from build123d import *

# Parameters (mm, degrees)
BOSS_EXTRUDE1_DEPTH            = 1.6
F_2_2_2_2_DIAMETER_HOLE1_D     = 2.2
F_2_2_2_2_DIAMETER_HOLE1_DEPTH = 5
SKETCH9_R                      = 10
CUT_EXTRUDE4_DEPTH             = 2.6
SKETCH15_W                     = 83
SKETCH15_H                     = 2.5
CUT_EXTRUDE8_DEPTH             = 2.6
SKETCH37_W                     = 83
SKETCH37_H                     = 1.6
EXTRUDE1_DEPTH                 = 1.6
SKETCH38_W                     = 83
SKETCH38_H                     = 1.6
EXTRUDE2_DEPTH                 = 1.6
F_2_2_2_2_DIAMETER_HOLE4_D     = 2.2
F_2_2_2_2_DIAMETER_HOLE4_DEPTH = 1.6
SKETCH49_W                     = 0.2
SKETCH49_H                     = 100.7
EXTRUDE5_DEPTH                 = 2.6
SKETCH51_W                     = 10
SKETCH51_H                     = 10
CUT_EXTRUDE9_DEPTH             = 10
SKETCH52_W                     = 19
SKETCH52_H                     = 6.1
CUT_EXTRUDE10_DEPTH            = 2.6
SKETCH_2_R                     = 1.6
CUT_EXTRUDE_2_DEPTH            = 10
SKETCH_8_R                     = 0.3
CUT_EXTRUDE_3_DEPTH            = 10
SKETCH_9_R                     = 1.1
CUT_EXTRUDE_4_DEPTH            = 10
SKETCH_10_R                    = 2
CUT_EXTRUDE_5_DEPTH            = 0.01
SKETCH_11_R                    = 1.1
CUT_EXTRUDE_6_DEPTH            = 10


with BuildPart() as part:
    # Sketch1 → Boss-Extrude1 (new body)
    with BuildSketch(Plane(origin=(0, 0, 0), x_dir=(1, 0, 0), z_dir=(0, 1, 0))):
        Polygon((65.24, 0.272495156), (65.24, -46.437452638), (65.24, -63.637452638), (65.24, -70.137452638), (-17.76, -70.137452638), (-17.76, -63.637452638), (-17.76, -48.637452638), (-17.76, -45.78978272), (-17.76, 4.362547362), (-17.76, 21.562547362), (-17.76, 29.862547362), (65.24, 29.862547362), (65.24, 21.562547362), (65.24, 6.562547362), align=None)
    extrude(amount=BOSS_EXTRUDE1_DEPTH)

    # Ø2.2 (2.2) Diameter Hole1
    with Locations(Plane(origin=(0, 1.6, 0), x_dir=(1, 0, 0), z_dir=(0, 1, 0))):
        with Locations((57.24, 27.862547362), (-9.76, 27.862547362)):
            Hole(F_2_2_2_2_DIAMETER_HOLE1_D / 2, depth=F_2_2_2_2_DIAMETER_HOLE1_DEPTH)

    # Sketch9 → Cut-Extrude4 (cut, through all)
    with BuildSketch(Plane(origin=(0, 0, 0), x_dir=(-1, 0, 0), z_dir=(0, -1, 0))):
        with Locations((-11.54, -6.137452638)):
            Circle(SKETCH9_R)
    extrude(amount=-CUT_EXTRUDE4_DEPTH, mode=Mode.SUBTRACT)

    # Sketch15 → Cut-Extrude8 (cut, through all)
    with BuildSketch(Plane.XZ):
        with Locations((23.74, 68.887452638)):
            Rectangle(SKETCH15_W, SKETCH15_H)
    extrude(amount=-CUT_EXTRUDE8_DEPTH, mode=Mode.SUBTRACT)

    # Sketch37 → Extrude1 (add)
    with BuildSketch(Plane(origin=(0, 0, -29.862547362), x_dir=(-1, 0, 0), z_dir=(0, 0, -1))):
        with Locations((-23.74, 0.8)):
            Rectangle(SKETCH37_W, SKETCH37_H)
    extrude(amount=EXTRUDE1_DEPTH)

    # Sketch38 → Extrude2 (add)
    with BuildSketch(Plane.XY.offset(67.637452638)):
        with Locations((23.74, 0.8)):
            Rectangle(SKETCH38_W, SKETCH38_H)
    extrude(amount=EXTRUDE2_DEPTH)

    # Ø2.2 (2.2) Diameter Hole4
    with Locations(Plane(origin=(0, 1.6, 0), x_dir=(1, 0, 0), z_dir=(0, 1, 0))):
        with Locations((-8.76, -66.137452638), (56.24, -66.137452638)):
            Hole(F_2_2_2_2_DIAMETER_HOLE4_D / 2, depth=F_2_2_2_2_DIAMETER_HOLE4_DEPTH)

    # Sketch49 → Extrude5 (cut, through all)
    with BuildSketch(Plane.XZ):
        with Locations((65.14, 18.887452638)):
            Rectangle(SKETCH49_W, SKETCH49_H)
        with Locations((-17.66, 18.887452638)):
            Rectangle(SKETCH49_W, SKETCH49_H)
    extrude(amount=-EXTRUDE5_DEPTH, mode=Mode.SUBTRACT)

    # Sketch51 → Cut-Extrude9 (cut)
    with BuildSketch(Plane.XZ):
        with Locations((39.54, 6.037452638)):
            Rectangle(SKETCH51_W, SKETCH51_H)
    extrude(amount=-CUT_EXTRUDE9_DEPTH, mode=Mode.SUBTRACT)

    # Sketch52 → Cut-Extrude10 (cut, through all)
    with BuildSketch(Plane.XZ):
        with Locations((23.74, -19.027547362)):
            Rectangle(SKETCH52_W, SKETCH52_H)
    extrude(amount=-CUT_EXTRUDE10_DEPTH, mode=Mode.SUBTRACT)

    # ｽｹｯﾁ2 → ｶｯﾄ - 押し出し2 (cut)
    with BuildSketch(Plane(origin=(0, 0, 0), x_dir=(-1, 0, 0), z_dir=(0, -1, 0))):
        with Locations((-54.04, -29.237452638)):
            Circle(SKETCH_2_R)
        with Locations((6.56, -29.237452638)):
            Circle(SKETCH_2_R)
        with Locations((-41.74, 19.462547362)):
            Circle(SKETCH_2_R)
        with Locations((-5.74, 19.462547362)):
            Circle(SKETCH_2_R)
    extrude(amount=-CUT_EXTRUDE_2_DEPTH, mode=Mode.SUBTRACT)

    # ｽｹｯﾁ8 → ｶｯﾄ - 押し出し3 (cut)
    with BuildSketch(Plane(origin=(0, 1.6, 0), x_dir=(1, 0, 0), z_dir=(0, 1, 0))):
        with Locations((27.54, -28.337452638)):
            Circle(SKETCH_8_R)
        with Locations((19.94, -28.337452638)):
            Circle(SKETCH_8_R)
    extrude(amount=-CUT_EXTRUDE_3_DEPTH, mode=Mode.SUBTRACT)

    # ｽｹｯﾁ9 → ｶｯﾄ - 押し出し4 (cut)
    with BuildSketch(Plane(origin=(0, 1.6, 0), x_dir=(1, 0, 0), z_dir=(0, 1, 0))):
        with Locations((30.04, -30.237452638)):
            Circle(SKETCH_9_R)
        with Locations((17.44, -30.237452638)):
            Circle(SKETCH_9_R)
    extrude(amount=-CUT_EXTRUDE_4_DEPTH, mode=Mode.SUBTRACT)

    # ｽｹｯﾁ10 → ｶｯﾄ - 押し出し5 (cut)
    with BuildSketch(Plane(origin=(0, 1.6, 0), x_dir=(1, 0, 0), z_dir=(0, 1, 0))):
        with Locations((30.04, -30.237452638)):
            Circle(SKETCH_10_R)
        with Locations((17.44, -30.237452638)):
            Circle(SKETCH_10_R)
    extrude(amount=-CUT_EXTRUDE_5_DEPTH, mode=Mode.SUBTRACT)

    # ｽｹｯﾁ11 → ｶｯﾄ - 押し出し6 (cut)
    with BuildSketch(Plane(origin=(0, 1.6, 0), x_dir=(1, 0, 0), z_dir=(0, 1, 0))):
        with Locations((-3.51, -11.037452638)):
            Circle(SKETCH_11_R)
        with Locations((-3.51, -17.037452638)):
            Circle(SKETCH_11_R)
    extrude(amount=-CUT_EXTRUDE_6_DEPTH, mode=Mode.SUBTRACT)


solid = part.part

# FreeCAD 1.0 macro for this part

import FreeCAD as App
import Part
import Sketcher

doc = App.newDocument("Part")
body = doc.addObject("PartDesign::Body", "Body")

sketch1 = body.newObject("Sketcher::SketchObject", "Sketch")
sketch1.AttachmentSupport = (doc.getObject("XZ_Plane"), [""])
sketch1.MapMode = "FlatFace"
sketch1.addGeometry([
    Part.LineSegment(App.Vector(65, 70, 0), App.Vector(65, -30, 0)),
    Part.LineSegment(App.Vector(65, -30, 0), App.Vector(-18, -30, 0)),
    Part.LineSegment(App.Vector(-18, -30, 0), App.Vector(-18, 70, 0)),
    Part.LineSegment(App.Vector(-18, 70, 0), App.Vector(65, 70, 0)),
], False)
sketch1.addConstraint([
    Sketcher.Constraint("Coincident", 0, 2, 1, 1),
    Sketcher.Constraint("Coincident", 1, 2, 2, 1),
    Sketcher.Constraint("Coincident", 2, 2, 3, 1),
    Sketcher.Constraint("Coincident", 3, 2, 0, 1),
    Sketcher.Constraint("Vertical", 0),
    Sketcher.Constraint("Horizontal", 1),
    Sketcher.Constraint("Vertical", 2),
    Sketcher.Constraint("Horizontal", 3),
    Sketcher.Constraint("DistanceX", 1, 2, 1, 1, 83.0),
    Sketcher.Constraint("DistanceY", 0, 2, 0, 1, 100.0),
    Sketcher.Constraint("DistanceX", -1, 1, 0, 2, 65.24),
    Sketcher.Constraint("DistanceY", 0, 2, -1, 1, 29.862547),
])
pad1 = body.newObject("PartDesign::Pad", "Pad")
pad1.Profile = sketch1
pad1.Length = 1.6
pad1.Reversed = True

sketch2 = body.newObject("Sketcher::SketchObject", "Sketch001")
sketch2.AttachmentSupport = (doc.getObject("XZ_Plane"), [""])
sketch2.MapMode = "FlatFace"
sketch2.AttachmentOffset = App.Placement(App.Vector(0, 0, -1.6), App.Rotation())
sketch2.addGeometry([
    Part.Circle(App.Vector(57.2, -27.9, 0), App.Vector(0, 0, 1), 1.1),
    Part.Circle(App.Vector(-9.8, -27.9, 0), App.Vector(0, 0, 1), 1.1),
], False)
sketch2.addConstraint([
    Sketcher.Constraint("Equal", 0, 1),
    Sketcher.Constraint("Horizontal", 0, 3, 1, 3),
    Sketcher.Constraint("Diameter", 0, 2.2),
    Sketcher.Constraint("DistanceX", 1, 3, 0, 3, 67.0),
    Sketcher.Constraint("DistanceX", -1, 1, 0, 3, 57.24),
    Sketcher.Constraint("DistanceY", 0, 3, -1, 1, 27.862547),
])
doc.recompute()
hole = body.newObject("PartDesign::Hole", "Hole")
hole.Profile = sketch2
hole.ThreadType = "None"
hole.Diameter = 2.2
hole.DepthType = "Dimension"
hole.Depth = 5
hole.DrillPoint = "Flat"
hole.Reversed = True

sketch3 = body.newObject("Sketcher::SketchObject", "Sketch002")
sketch3.AttachmentSupport = (doc.getObject("XZ_Plane"), [""])
sketch3.MapMode = "FlatFace"
sketch3.addGeometry(Part.Circle(App.Vector(12, 6, 0), App.Vector(0, 0, 1), 10), False)
sketch3.addConstraint([
    Sketcher.Constraint("Diameter", 0, 20.0),
    Sketcher.Constraint("DistanceX", -1, 1, 0, 3, 11.54),
    Sketcher.Constraint("DistanceY", -1, 1, 0, 3, 6.137453),
])
pocket1 = body.newObject("PartDesign::Pocket", "Pocket")
pocket1.Profile = sketch3
pocket1.Type = "ThroughAll"

sketch4 = body.newObject("Sketcher::SketchObject", "Sketch003")
sketch4.AttachmentSupport = (doc.getObject("XZ_Plane"), [""])
sketch4.MapMode = "FlatFace"
sketch4.addGeometry([
    Part.LineSegment(App.Vector(-17.8, 70.1, 0), App.Vector(-17.8, 67.6, 0)),
    Part.LineSegment(App.Vector(-17.8, 67.6, 0), App.Vector(65.2, 67.6, 0)),
    Part.LineSegment(App.Vector(65.2, 67.6, 0), App.Vector(65.2, 70.1, 0)),
    Part.LineSegment(App.Vector(65.2, 70.1, 0), App.Vector(-17.8, 70.1, 0)),
], False)
sketch4.addConstraint([
    Sketcher.Constraint("Coincident", 0, 2, 1, 1),
    Sketcher.Constraint("Coincident", 1, 2, 2, 1),
    Sketcher.Constraint("Coincident", 2, 2, 3, 1),
    Sketcher.Constraint("Coincident", 3, 2, 0, 1),
    Sketcher.Constraint("Vertical", 0),
    Sketcher.Constraint("Horizontal", 1),
    Sketcher.Constraint("Vertical", 2),
    Sketcher.Constraint("Horizontal", 3),
    Sketcher.Constraint("DistanceX", 1, 1, 1, 2, 83.0),
    Sketcher.Constraint("DistanceY", 0, 2, 0, 1, 2.5),
    Sketcher.Constraint("DistanceX", 0, 2, -1, 1, 17.76),
    Sketcher.Constraint("DistanceY", -1, 1, 0, 2, 67.637453),
])
pocket2 = body.newObject("PartDesign::Pocket", "Pocket001")
pocket2.Profile = sketch4
pocket2.Type = "ThroughAll"

sketch5 = body.newObject("Sketcher::SketchObject", "Sketch004")
sketch5.AttachmentSupport = (doc.getObject("XY_Plane"), [""])
sketch5.MapMode = "FlatFace"
sketch5.AttachmentOffset = App.Placement(App.Vector(0, 0, -29.862547), App.Rotation())
sketch5.addGeometry([
    Part.LineSegment(App.Vector(65.2, 1.6, 0), App.Vector(65.2, 0, 0)),
    Part.LineSegment(App.Vector(65.2, 0, 0), App.Vector(-17.8, 0, 0)),
    Part.LineSegment(App.Vector(-17.8, 0, 0), App.Vector(-17.8, 1.6, 0)),
    Part.LineSegment(App.Vector(-17.8, 1.6, 0), App.Vector(65.2, 1.6, 0)),
], False)
sketch5.addConstraint([
    Sketcher.Constraint("Coincident", 0, 2, 1, 1),
    Sketcher.Constraint("Coincident", 1, 2, 2, 1),
    Sketcher.Constraint("Coincident", 2, 2, 3, 1),
    Sketcher.Constraint("Coincident", 3, 2, 0, 1),
    Sketcher.Constraint("Vertical", 0),
    Sketcher.Constraint("Horizontal", 1),
    Sketcher.Constraint("Vertical", 2),
    Sketcher.Constraint("Horizontal", 3),
    Sketcher.Constraint("PointOnObject", 0, 2, -1),
    Sketcher.Constraint("DistanceX", 1, 2, 1, 1, 83.0),
    Sketcher.Constraint("DistanceY", 0, 2, 0, 1, 1.6),
    Sketcher.Constraint("DistanceX", -1, 1, 0, 2, 65.24),
])
pad2 = body.newObject("PartDesign::Pad", "Pad001")
pad2.Profile = sketch5
pad2.Length = 1.6
pad2.Reversed = True

sketch6 = body.newObject("Sketcher::SketchObject", "Sketch005")
sketch6.AttachmentSupport = (doc.getObject("XY_Plane"), [""])
sketch6.MapMode = "FlatFace"
sketch6.AttachmentOffset = App.Placement(App.Vector(0, 0, 67.637453), App.Rotation())
sketch6.addGeometry([
    Part.LineSegment(App.Vector(-17.8, 1.6, 0), App.Vector(-17.8, 0, 0)),
    Part.LineSegment(App.Vector(-17.8, 0, 0), App.Vector(65.2, 0, 0)),
    Part.LineSegment(App.Vector(65.2, 0, 0), App.Vector(65.2, 1.6, 0)),
    Part.LineSegment(App.Vector(65.2, 1.6, 0), App.Vector(-17.8, 1.6, 0)),
], False)
sketch6.addConstraint([
    Sketcher.Constraint("Coincident", 0, 2, 1, 1),
    Sketcher.Constraint("Coincident", 1, 2, 2, 1),
    Sketcher.Constraint("Coincident", 2, 2, 3, 1),
    Sketcher.Constraint("Coincident", 3, 2, 0, 1),
    Sketcher.Constraint("Vertical", 0),
    Sketcher.Constraint("Horizontal", 1),
    Sketcher.Constraint("Vertical", 2),
    Sketcher.Constraint("Horizontal", 3),
    Sketcher.Constraint("PointOnObject", 0, 2, -1),
    Sketcher.Constraint("DistanceX", 1, 1, 1, 2, 83.0),
    Sketcher.Constraint("DistanceY", 0, 2, 0, 1, 1.6),
    Sketcher.Constraint("DistanceX", 0, 2, -1, 1, 17.76),
])
pad3 = body.newObject("PartDesign::Pad", "Pad002")
pad3.Profile = sketch6
pad3.Length = 1.6

sketch7 = body.newObject("Sketcher::SketchObject", "Sketch006")
sketch7.AttachmentSupport = (doc.getObject("XZ_Plane"), [""])
sketch7.MapMode = "FlatFace"
sketch7.AttachmentOffset = App.Placement(App.Vector(0, 0, -1.6), App.Rotation())
sketch7.addGeometry([
    Part.Circle(App.Vector(-8.8, 66.1, 0), App.Vector(0, 0, 1), 1.1),
    Part.Circle(App.Vector(56.2, 66.1, 0), App.Vector(0, 0, 1), 1.1),
], False)
sketch7.addConstraint([
    Sketcher.Constraint("Equal", 0, 1),
    Sketcher.Constraint("Horizontal", 0, 3, 1, 3),
    Sketcher.Constraint("Diameter", 0, 2.2),
    Sketcher.Constraint("DistanceX", 0, 3, 1, 3, 65.0),
    Sketcher.Constraint("DistanceX", 0, 3, -1, 1, 8.76),
    Sketcher.Constraint("DistanceY", -1, 1, 0, 3, 66.137453),
])
doc.recompute()
hole2 = body.newObject("PartDesign::Hole", "Hole001")
hole2.Profile = sketch7
hole2.ThreadType = "None"
hole2.Diameter = 2.2
hole2.DepthType = "Dimension"
hole2.Depth = 1.6
hole2.DrillPoint = "Flat"
hole2.Reversed = True

sketch8 = body.newObject("Sketcher::SketchObject", "Sketch007")
sketch8.AttachmentSupport = (doc.getObject("XZ_Plane"), [""])
sketch8.MapMode = "FlatFace"
sketch8.addGeometry([
    Part.LineSegment(App.Vector(65.04, 69.24, 0), App.Vector(65.04, -31.46, 0)),
    Part.LineSegment(App.Vector(65.04, -31.46, 0), App.Vector(65.24, -31.46, 0)),
    Part.LineSegment(App.Vector(65.24, -31.46, 0), App.Vector(65.24, 69.24, 0)),
    Part.LineSegment(App.Vector(65.24, 69.24, 0), App.Vector(65.04, 69.24, 0)),
    Part.LineSegment(App.Vector(-17.76, 69.24, 0), App.Vector(-17.76, -31.46, 0)),
    Part.LineSegment(App.Vector(-17.76, -31.46, 0), App.Vector(-17.56, -31.46, 0)),
    Part.LineSegment(App.Vector(-17.56, -31.46, 0), App.Vector(-17.56, 69.24, 0)),
    Part.LineSegment(App.Vector(-17.56, 69.24, 0), App.Vector(-17.76, 69.24, 0)),
], False)
sketch8.addConstraint([
    Sketcher.Constraint("Coincident", 0, 2, 1, 1),
    Sketcher.Constraint("Coincident", 1, 2, 2, 1),
    Sketcher.Constraint("Coincident", 2, 2, 3, 1),
    Sketcher.Constraint("Coincident", 3, 2, 0, 1),
    Sketcher.Constraint("Coincident", 4, 2, 5, 1),
    Sketcher.Constraint("Coincident", 5, 2, 6, 1),
    Sketcher.Constraint("Coincident", 6, 2, 7, 1),
    Sketcher.Constraint("Coincident", 7, 2, 4, 1),
    Sketcher.Constraint("Vertical", 0),
    Sketcher.Constraint("Horizontal", 1),
    Sketcher.Constraint("Vertical", 2),
    Sketcher.Constraint("Horizontal", 3),
    Sketcher.Constraint("Vertical", 4),
    Sketcher.Constraint("Horizontal", 5),
    Sketcher.Constraint("Vertical", 6),
    Sketcher.Constraint("Horizontal", 7),
    Sketcher.Constraint("Horizontal", 1, 2, 4, 2),
    Sketcher.Constraint("Horizontal", 3, 2, 6, 2),
    Sketcher.Constraint("Equal", 3, 5),
    Sketcher.Constraint("DistanceX", 1, 1, 1, 2, 0.2),
    Sketcher.Constraint("DistanceY", 0, 2, 0, 1, 100.7),
    Sketcher.Constraint("DistanceX", 4, 2, 1, 2, 83.0),
    Sketcher.Constraint("DistanceX", -1, 1, 0, 2, 65.04),
    Sketcher.Constraint("DistanceY", 0, 2, -1, 1, 31.462547),
])
pocket3 = body.newObject("PartDesign::Pocket", "Pocket002")
pocket3.Profile = sketch8
pocket3.Type = "ThroughAll"

sketch9 = body.newObject("Sketcher::SketchObject", "Sketch008")
sketch9.AttachmentSupport = (doc.getObject("XZ_Plane"), [""])
sketch9.MapMode = "FlatFace"
sketch9.addGeometry([
    Part.LineSegment(App.Vector(35, 11, 0), App.Vector(35, 1, 0)),
    Part.LineSegment(App.Vector(35, 1, 0), App.Vector(45, 1, 0)),
    Part.LineSegment(App.Vector(45, 1, 0), App.Vector(45, 11, 0)),
    Part.LineSegment(App.Vector(45, 11, 0), App.Vector(35, 11, 0)),
], False)
sketch9.addConstraint([
    Sketcher.Constraint("Coincident", 0, 2, 1, 1),
    Sketcher.Constraint("Coincident", 1, 2, 2, 1),
    Sketcher.Constraint("Coincident", 2, 2, 3, 1),
    Sketcher.Constraint("Coincident", 3, 2, 0, 1),
    Sketcher.Constraint("Vertical", 0),
    Sketcher.Constraint("Horizontal", 1),
    Sketcher.Constraint("Vertical", 2),
    Sketcher.Constraint("Horizontal", 3),
    Sketcher.Constraint("Equal", 3, 0),
    Sketcher.Constraint("DistanceX", 1, 1, 1, 2, 10.0),
    Sketcher.Constraint("DistanceX", -1, 1, 0, 2, 34.54),
    Sketcher.Constraint("DistanceY", -1, 1, 0, 2, 1.037453),
])
pocket4 = body.newObject("PartDesign::Pocket", "Pocket003")
pocket4.Profile = sketch9
pocket4.Length = 10

sketch10 = body.newObject("Sketcher::SketchObject", "Sketch009")
sketch10.AttachmentSupport = (doc.getObject("XZ_Plane"), [""])
sketch10.MapMode = "FlatFace"
sketch10.addGeometry([
    Part.LineSegment(App.Vector(14, -16, 0), App.Vector(14, -22, 0)),
    Part.LineSegment(App.Vector(14, -22, 0), App.Vector(33, -22, 0)),
    Part.LineSegment(App.Vector(33, -22, 0), App.Vector(33, -16, 0)),
    Part.LineSegment(App.Vector(33, -16, 0), App.Vector(14, -16, 0)),
], False)
sketch10.addConstraint([
    Sketcher.Constraint("Coincident", 0, 2, 1, 1),
    Sketcher.Constraint("Coincident", 1, 2, 2, 1),
    Sketcher.Constraint("Coincident", 2, 2, 3, 1),
    Sketcher.Constraint("Coincident", 3, 2, 0, 1),
    Sketcher.Constraint("Vertical", 0),
    Sketcher.Constraint("Horizontal", 1),
    Sketcher.Constraint("Vertical", 2),
    Sketcher.Constraint("Horizontal", 3),
    Sketcher.Constraint("DistanceX", 1, 1, 1, 2, 19.0),
    Sketcher.Constraint("DistanceY", 0, 2, 0, 1, 6.1),
    Sketcher.Constraint("DistanceX", -1, 1, 0, 2, 14.24),
    Sketcher.Constraint("DistanceY", 0, 2, -1, 1, 22.077547),
])
pocket5 = body.newObject("PartDesign::Pocket", "Pocket004")
pocket5.Profile = sketch10
pocket5.Type = "ThroughAll"

sketch11 = body.newObject("Sketcher::SketchObject", "Sketch010")
sketch11.AttachmentSupport = (doc.getObject("XZ_Plane"), [""])
sketch11.MapMode = "FlatFace"
sketch11.addGeometry([
    Part.Circle(App.Vector(54, 29.2, 0), App.Vector(0, 0, 1), 1.6),
    Part.Circle(App.Vector(-6.6, 29.2, 0), App.Vector(0, 0, 1), 1.6),
    Part.Circle(App.Vector(41.7, -19.5, 0), App.Vector(0, 0, 1), 1.6),
    Part.Circle(App.Vector(5.7, -19.5, 0), App.Vector(0, 0, 1), 1.6),
], False)
sketch11.addConstraint([
    Sketcher.Constraint("Equal", 0, 1),
    Sketcher.Constraint("Equal", 1, 2),
    Sketcher.Constraint("Equal", 2, 3),
    Sketcher.Constraint("Horizontal", 0, 3, 1, 3),
    Sketcher.Constraint("Horizontal", 2, 3, 3, 3),
    Sketcher.Constraint("Diameter", 0, 3.2),
    Sketcher.Constraint("DistanceX", 3, 3, 2, 3, 36.0),
    Sketcher.Constraint("DistanceX", 1, 3, 0, 3, 60.6),
    Sketcher.Constraint("DistanceX", 2, 3, 0, 3, 12.3),
    Sketcher.Constraint("DistanceY", 2, 3, 0, 3, 48.7),
    Sketcher.Constraint("DistanceX", -1, 1, 0, 3, 54.04),
    Sketcher.Constraint("DistanceY", -1, 1, 0, 3, 29.237453),
])
pocket6 = body.newObject("PartDesign::Pocket", "Pocket005")
pocket6.Profile = sketch11
pocket6.Length = 10

sketch12 = body.newObject("Sketcher::SketchObject", "Sketch011")
sketch12.AttachmentSupport = (doc.getObject("XZ_Plane"), [""])
sketch12.MapMode = "FlatFace"
sketch12.AttachmentOffset = App.Placement(App.Vector(0, 0, -1.6), App.Rotation())
sketch12.addGeometry([
    Part.Circle(App.Vector(27.54, 28.34, 0), App.Vector(0, 0, 1), 0.3),
    Part.Circle(App.Vector(19.94, 28.34, 0), App.Vector(0, 0, 1), 0.3),
], False)
sketch12.addConstraint([
    Sketcher.Constraint("Equal", 0, 1),
    Sketcher.Constraint("Horizontal", 0, 3, 1, 3),
    Sketcher.Constraint("Diameter", 0, 0.6),
    Sketcher.Constraint("DistanceX", 1, 3, 0, 3, 7.6),
    Sketcher.Constraint("DistanceX", -1, 1, 0, 3, 27.54),
    Sketcher.Constraint("DistanceY", -1, 1, 0, 3, 28.337453),
])
pocket7 = body.newObject("PartDesign::Pocket", "Pocket006")
pocket7.Profile = sketch12
pocket7.Length = 10
pocket7.Reversed = True

sketch13 = body.newObject("Sketcher::SketchObject", "Sketch012")
sketch13.AttachmentSupport = (doc.getObject("XZ_Plane"), [""])
sketch13.MapMode = "FlatFace"
sketch13.AttachmentOffset = App.Placement(App.Vector(0, 0, -1.6), App.Rotation())
sketch13.addGeometry([
    Part.Circle(App.Vector(30, 30.2, 0), App.Vector(0, 0, 1), 1.1),
    Part.Circle(App.Vector(17.4, 30.2, 0), App.Vector(0, 0, 1), 1.1),
], False)
sketch13.addConstraint([
    Sketcher.Constraint("Equal", 0, 1),
    Sketcher.Constraint("Horizontal", 0, 3, 1, 3),
    Sketcher.Constraint("Diameter", 0, 2.2),
    Sketcher.Constraint("DistanceX", 1, 3, 0, 3, 12.6),
    Sketcher.Constraint("DistanceX", -1, 1, 0, 3, 30.04),
    Sketcher.Constraint("DistanceY", -1, 1, 0, 3, 30.237453),
])
pocket8 = body.newObject("PartDesign::Pocket", "Pocket007")
pocket8.Profile = sketch13
pocket8.Length = 10
pocket8.Reversed = True

sketch14 = body.newObject("Sketcher::SketchObject", "Sketch013")
sketch14.AttachmentSupport = (doc.getObject("XZ_Plane"), [""])
sketch14.MapMode = "FlatFace"
sketch14.AttachmentOffset = App.Placement(App.Vector(0, 0, -1.6), App.Rotation())
sketch14.addGeometry([
    Part.Circle(App.Vector(30, 30.2, 0), App.Vector(0, 0, 1), 2),
    Part.Circle(App.Vector(17.4, 30.2, 0), App.Vector(0, 0, 1), 2),
], False)
sketch14.addConstraint([
    Sketcher.Constraint("Equal", 0, 1),
    Sketcher.Constraint("Horizontal", 0, 3, 1, 3),
    Sketcher.Constraint("Diameter", 0, 4.0),
    Sketcher.Constraint("DistanceX", 1, 3, 0, 3, 12.6),
    Sketcher.Constraint("DistanceX", -1, 1, 0, 3, 30.04),
    Sketcher.Constraint("DistanceY", -1, 1, 0, 3, 30.237453),
])
pocket9 = body.newObject("PartDesign::Pocket", "Pocket008")
pocket9.Profile = sketch14
pocket9.Length = 0.01
pocket9.Reversed = True

sketch15 = body.newObject("Sketcher::SketchObject", "Sketch014")
sketch15.AttachmentSupport = (doc.getObject("XZ_Plane"), [""])
sketch15.MapMode = "FlatFace"
sketch15.AttachmentOffset = App.Placement(App.Vector(0, 0, -1.6), App.Rotation())
sketch15.addGeometry([
    Part.Circle(App.Vector(-3.5, 11, 0), App.Vector(0, 0, 1), 1.1),
    Part.Circle(App.Vector(-3.5, 17, 0), App.Vector(0, 0, 1), 1.1),
], False)
sketch15.addConstraint([
    Sketcher.Constraint("Equal", 0, 1),
    Sketcher.Constraint("Vertical", 0, 3, 1, 3),
    Sketcher.Constraint("Diameter", 0, 2.2),
    Sketcher.Constraint("DistanceY", 0, 3, 1, 3, 6.0),
    Sketcher.Constraint("DistanceX", 0, 3, -1, 1, 3.51),
    Sketcher.Constraint("DistanceY", -1, 1, 0, 3, 11.037453),
])
pocket10 = body.newObject("PartDesign::Pocket", "Pocket009")
pocket10.Profile = sketch15
pocket10.Length = 10
pocket10.Reversed = True

doc.recompute()
